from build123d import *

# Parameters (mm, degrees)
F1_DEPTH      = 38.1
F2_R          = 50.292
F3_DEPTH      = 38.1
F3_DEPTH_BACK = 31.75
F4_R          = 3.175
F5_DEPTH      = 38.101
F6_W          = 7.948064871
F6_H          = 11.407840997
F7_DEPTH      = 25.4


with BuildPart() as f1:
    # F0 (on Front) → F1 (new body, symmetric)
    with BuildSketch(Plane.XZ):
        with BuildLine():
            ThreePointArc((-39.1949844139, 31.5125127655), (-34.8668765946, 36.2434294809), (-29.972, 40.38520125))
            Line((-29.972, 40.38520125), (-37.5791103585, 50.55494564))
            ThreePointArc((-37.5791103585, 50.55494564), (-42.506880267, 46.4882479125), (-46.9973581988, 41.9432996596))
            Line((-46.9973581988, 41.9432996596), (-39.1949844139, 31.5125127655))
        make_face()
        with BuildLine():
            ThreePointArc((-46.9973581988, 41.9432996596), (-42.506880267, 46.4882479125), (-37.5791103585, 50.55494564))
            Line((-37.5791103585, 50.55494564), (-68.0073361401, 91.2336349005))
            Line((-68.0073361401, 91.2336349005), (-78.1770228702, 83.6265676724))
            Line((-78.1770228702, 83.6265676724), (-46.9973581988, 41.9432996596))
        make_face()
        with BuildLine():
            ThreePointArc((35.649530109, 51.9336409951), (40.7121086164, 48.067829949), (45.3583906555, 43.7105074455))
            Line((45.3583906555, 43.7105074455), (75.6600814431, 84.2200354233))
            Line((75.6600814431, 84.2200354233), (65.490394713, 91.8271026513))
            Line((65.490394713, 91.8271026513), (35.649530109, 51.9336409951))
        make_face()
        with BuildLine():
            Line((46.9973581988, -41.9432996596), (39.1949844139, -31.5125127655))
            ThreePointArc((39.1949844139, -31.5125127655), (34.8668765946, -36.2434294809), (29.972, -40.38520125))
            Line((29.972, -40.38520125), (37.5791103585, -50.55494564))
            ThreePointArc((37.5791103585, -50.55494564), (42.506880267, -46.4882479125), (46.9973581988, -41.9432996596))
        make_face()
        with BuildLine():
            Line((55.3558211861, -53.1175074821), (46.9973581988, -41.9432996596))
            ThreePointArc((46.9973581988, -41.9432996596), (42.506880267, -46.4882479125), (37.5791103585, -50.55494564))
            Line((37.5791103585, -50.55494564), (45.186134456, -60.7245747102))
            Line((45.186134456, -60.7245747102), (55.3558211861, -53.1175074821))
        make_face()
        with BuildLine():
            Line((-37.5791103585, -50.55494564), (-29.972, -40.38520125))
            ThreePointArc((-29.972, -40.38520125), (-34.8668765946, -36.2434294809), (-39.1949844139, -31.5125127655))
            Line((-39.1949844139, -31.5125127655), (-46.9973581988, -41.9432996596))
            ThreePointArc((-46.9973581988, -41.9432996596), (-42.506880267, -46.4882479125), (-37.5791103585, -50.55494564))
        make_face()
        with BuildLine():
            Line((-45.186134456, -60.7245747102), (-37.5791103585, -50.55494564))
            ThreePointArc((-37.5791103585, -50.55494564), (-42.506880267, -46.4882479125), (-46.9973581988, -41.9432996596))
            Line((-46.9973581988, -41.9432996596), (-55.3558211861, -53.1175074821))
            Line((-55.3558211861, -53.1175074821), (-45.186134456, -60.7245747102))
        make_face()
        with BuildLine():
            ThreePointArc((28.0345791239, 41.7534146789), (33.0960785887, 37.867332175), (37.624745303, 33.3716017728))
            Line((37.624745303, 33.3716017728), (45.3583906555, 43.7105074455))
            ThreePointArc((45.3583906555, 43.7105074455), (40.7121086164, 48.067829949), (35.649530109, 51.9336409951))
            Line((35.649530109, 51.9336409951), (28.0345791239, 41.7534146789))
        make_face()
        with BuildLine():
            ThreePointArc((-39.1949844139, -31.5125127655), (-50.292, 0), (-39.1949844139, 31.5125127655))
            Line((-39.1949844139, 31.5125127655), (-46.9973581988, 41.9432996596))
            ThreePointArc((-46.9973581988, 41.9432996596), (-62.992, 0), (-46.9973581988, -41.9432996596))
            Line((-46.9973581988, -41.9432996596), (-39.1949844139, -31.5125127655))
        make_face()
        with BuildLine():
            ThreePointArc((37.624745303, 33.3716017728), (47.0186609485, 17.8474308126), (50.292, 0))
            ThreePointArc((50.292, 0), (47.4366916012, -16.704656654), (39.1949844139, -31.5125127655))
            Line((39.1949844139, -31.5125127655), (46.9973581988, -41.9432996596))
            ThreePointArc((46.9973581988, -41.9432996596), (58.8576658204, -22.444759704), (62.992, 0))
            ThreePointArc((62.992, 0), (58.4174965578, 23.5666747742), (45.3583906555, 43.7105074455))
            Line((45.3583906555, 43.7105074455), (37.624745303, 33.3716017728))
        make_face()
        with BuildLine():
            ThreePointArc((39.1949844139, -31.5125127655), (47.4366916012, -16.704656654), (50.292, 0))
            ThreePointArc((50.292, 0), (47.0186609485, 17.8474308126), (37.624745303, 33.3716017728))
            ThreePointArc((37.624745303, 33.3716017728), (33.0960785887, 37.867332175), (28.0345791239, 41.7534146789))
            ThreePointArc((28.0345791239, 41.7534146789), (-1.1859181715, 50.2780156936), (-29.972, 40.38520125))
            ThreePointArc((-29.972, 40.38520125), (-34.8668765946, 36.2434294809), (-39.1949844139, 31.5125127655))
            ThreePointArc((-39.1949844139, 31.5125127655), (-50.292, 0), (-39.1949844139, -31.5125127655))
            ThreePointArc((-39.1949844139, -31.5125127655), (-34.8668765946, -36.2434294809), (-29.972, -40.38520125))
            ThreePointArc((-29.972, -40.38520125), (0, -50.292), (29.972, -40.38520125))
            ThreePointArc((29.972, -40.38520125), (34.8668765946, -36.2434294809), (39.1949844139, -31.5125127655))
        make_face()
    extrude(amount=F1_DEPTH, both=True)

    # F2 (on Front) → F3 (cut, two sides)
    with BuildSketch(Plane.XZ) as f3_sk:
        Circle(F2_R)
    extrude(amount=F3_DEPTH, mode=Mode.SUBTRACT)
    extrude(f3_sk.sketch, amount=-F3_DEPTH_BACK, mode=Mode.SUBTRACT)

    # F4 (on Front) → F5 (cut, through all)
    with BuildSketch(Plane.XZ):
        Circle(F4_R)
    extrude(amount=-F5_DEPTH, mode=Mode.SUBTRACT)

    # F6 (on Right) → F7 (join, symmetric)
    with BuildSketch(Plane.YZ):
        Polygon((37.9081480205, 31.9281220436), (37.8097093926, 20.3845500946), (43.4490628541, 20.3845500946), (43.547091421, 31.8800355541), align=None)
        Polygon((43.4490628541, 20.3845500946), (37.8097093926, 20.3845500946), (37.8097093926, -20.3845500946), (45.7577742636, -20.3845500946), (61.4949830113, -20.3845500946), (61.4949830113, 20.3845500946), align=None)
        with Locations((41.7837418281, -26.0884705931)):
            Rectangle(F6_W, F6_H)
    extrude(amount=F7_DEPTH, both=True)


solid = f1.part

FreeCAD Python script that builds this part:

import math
import FreeCAD as App
import Part
import Sketcher
Q = App.Units.Quantity

doc = App.newDocument("Part")
body = doc.addObject("PartDesign::Body", "Body")

sketch1 = body.newObject("Sketcher::SketchObject", "Sketch")
sketch1.AttachmentSupport = (doc.getObject("XZ_Plane"), [""])
sketch1.MapMode = "FlatFace"
sketch1.addGeometry([
    Part.LineSegment(App.Vector(-30, 40, 0), App.Vector(-38, 51, 0)),
    Part.LineSegment(App.Vector(-38, 51, 0), App.Vector(-68, 91, 0)),
    Part.LineSegment(App.Vector(-68, 91, 0), App.Vector(-78, 84, 0)),
    Part.LineSegment(App.Vector(-78, 84, 0), App.Vector(-47, 42, 0)),
    Part.ArcOfCircle(Part.Circle(App.Vector(0, 0, 0), App.Vector(0, 0, 1), 63), math.radians(138), math.radians(222)),
    Part.LineSegment(App.Vector(-47, -42, 0), App.Vector(-55, -53, 0)),
    Part.LineSegment(App.Vector(-55, -53, 0), App.Vector(-45, -61, 0)),
    Part.LineSegment(App.Vector(-45, -61, 0), App.Vector(-38, -51, 0)),
    Part.LineSegment(App.Vector(-38, -51, 0), App.Vector(-30, -40, 0)),
    Part.ArcOfCircle(Part.Circle(App.Vector(0, 0, 0), App.Vector(0, 0, 1), 50), math.radians(-127), math.radians(-53)),
    Part.LineSegment(App.Vector(30, -40, 0), App.Vector(38, -51, 0)),
    Part.LineSegment(App.Vector(38, -51, 0), App.Vector(45, -61, 0)),
    Part.LineSegment(App.Vector(45, -61, 0), App.Vector(55, -53, 0)),
    Part.LineSegment(App.Vector(55, -53, 0), App.Vector(47, -42, 0)),
    Part.ArcOfCircle(Part.Circle(App.Vector(0, 0, 0), App.Vector(0, 0, 1), 63), math.radians(-42), math.radians(0)),
    Part.ArcOfCircle(Part.Circle(App.Vector(0, 0, 0), App.Vector(0, 0, 1), 63), math.radians(0), math.radians(44)),
    Part.LineSegment(App.Vector(45, 44, 0), App.Vector(76, 84, 0)),
    Part.LineSegment(App.Vector(76, 84, 0), App.Vector(65, 92, 0)),
    Part.LineSegment(App.Vector(65, 92, 0), App.Vector(36, 52, 0)),
    Part.LineSegment(App.Vector(36, 52, 0), App.Vector(28, 42, 0)),
    Part.ArcOfCircle(Part.Circle(App.Vector(0, 0, 0), App.Vector(0, 0, 1), 50), math.radians(56), math.radians(127)),
], False)
sketch1.addConstraint([
    Sketcher.Constraint("Coincident", 0, 2, 1, 1),
    Sketcher.Constraint("Coincident", 1, 2, 2, 1),
    Sketcher.Constraint("Coincident", 2, 2, 3, 1),
    Sketcher.Constraint("Coincident", 3, 2, 4, 1),
    Sketcher.Constraint("Coincident", 4, 2, 5, 1),
    Sketcher.Constraint("Coincident", 5, 2, 6, 1),
    Sketcher.Constraint("Coincident", 6, 2, 7, 1),
    Sketcher.Constraint("Coincident", 7, 2, 8, 1),
    Sketcher.Constraint("Coincident", 8, 2, 9, 1),
    Sketcher.Constraint("Coincident", 9, 2, 10, 1),
    Sketcher.Constraint("Coincident", 10, 2, 11, 1),
    Sketcher.Constraint("Coincident", 11, 2, 12, 1),
    Sketcher.Constraint("Coincident", 12, 2, 13, 1),
    Sketcher.Constraint("Coincident", 13, 2, 14, 1),
    Sketcher.Constraint("Tangent", 14, 2, 15, 1),
    Sketcher.Constraint("Coincident", 15, 2, 16, 1),
    Sketcher.Constraint("Coincident", 16, 2, 17, 1),
    Sketcher.Constraint("Coincident", 17, 2, 18, 1),
    Sketcher.Constraint("Coincident", 18, 2, 19, 1),
    Sketcher.Constraint("Coincident", 19, 2, 20, 1),
    Sketcher.Constraint("Coincident", 20, 2, 0, 1),
    Sketcher.Constraint("Coincident", 4, 3, -1, 1),
    Sketcher.Constraint("Coincident", 9, 3, -1, 1),
    Sketcher.Constraint("Coincident", 14, 3, -1, 1),
    Sketcher.Constraint("Coincident", 20, 3, -1, 1),
    Sketcher.Constraint("Equal", 4, 14),
    Sketcher.Constraint("Equal", 14, 15),
    Sketcher.Constraint("Equal", 9, 20),
    Sketcher.Constraint("Symmetric", 0, 2, 10, 2, -1, 1),
    Sketcher.Constraint("Symmetric", 7, 2, 10, 2, -2),
    Sketcher.Constraint("Symmetric", 6, 2, 11, 2, -2),
    Sketcher.Constraint("Symmetric", 5, 2, 12, 2, -2),
    Sketcher.Constraint("PointOnObject", 14, 2, -1),
    Sketcher.Constraint("Parallel", 0, 1),
    Sketcher.Constraint("Perpendicular", 1, 2),
    Sketcher.Constraint("Perpendicular", 2, 3),
    Sketcher.Constraint("Perpendicular", 5, 6),
    Sketcher.Constraint("Perpendicular", 6, 7),
    Sketcher.Constraint("Parallel", 7, 8),
    Sketcher.Constraint("Parallel", 3, 10),
    Sketcher.Constraint("Parallel", 10, 11),
    Sketcher.Constraint("Perpendicular", 12, 13),
    Sketcher.Constraint("Parallel", 8, 16),
    Sketcher.Constraint("Perpendicular", 16, 17),
    Sketcher.Constraint("Perpendicular", 17, 18),
    Sketcher.Constraint("Parallel", 18, 19),
    Sketcher.Constraint("Vertical", 3, 2, 4, 2),
    Sketcher.Constraint("Equal", 12, 17),
    Sketcher.Constraint("Radius", 4, Q("2.48 in")),
    Sketcher.Constraint("Radius", 9, Q("1.98 in")),
    Sketcher.Constraint("Distance", 2, Q("0.5 in")),
    Sketcher.Constraint("DistanceX", 9, 2, 14, 2, Q("1.3 in")),
    Sketcher.Constraint("DistanceY", -1, 1, 3, 2, 41.9433),
    Sketcher.Constraint("Distance", 18, 49.819328),
    Sketcher.Constraint("Distance", 19, 12.713162),
    Sketcher.Constraint("DistanceX", 0, 2, -1, 1, 37.57911),
    Sketcher.Constraint("DistanceX", 5, 2, -1, 1, 55.355821),
    Sketcher.Constraint("DistanceX", -1, 1, 15, 2, 45.358391),
    Sketcher.Constraint("DistanceY", 0, 2, 1, 2, 40.678689),
])
pad1 = body.newObject("PartDesign::Pad", "Pad")
pad1.Profile = sketch1
pad1.Length = Q("3 in")
pad1.Midplane = True

sketch2 = body.newObject("Sketcher::SketchObject", "Sketch001")
sketch2.AttachmentSupport = (doc.getObject("XZ_Plane"), [""])
sketch2.MapMode = "FlatFace"
sketch2.addGeometry(Part.Circle(App.Vector(0, 0, 0), App.Vector(0, 0, 1), 50), False)
sketch2.addConstraint([
    Sketcher.Constraint("Coincident", 0, 3, -1, 1),
    Sketcher.Constraint("Diameter", 0, Q("3.96 in")),
])
pocket1 = body.newObject("PartDesign::Pocket", "Pocket")
pocket1.Profile = sketch2
pocket1.Type = "TwoLengths"
pocket1.Length = Q("1.5 in")
pocket1.Length2 = Q("1.25 in")
pocket1.Reversed = True

sketch3 = body.newObject("Sketcher::SketchObject", "Sketch002")
sketch3.AttachmentSupport = (doc.getObject("XZ_Plane"), [""])
sketch3.MapMode = "FlatFace"
sketch3.addGeometry(Part.Circle(App.Vector(0, 0, 0), App.Vector(0, 0, 1), 3.2), False)
sketch3.addConstraint([
    Sketcher.Constraint("Coincident", 0, 3, -1, 1),
    Sketcher.Constraint("Diameter", 0, Q("0.25 in")),
])
pocket2 = body.newObject("PartDesign::Pocket", "Pocket001")
pocket2.Profile = sketch3
pocket2.Type = "ThroughAll"

sketch4 = body.newObject("Sketcher::SketchObject", "Sketch003")
sketch4.AttachmentSupport = (doc.getObject("YZ_Plane"), [""])
sketch4.MapMode = "FlatFace"
sketch4.addGeometry([
    Part.LineSegment(App.Vector(38, 32, 0), App.Vector(38, 20, 0)),
    Part.LineSegment(App.Vector(38, 20, 0), App.Vector(38, -32, 0)),
    Part.LineSegment(App.Vector(38, -32, 0), App.Vector(46, -32, 0)),
    Part.LineSegment(App.Vector(46, -32, 0), App.Vector(46, -20, 0)),
    Part.LineSegment(App.Vector(46, -20, 0), App.Vector(61, -20, 0)),
    Part.LineSegment(App.Vector(61, -20, 0), App.Vector(61, 20, 0)),
    Part.LineSegment(App.Vector(61, 20, 0), App.Vector(43, 20, 0)),
    Part.LineSegment(App.Vector(43, 20, 0), App.Vector(44, 32, 0)),
    Part.LineSegment(App.Vector(44, 32, 0), App.Vector(38, 32, 0)),
], False)
sketch4.addConstraint([
    Sketcher.Constraint("Coincident", 0, 2, 1, 1),
    Sketcher.Constraint("Coincident", 1, 2, 2, 1),
    Sketcher.Constraint("Coincident", 2, 2, 3, 1),
    Sketcher.Constraint("Coincident", 3, 2, 4, 1),
    Sketcher.Constraint("Coincident", 4, 2, 5, 1),
    Sketcher.Constraint("Coincident", 5, 2, 6, 1),
    Sketcher.Constraint("Coincident", 6, 2, 7, 1),
    Sketcher.Constraint("Coincident", 7, 2, 8, 1),
    Sketcher.Constraint("Coincident", 8, 2, 0, 1),
    Sketcher.Constraint("Vertical", 1),
    Sketcher.Constraint("Horizontal", 2),
    Sketcher.Constraint("Vertical", 3),
    Sketcher.Constraint("Horizontal", 4),
    Sketcher.Constraint("Vertical", 5),
    Sketcher.Constraint("Horizontal", 6),
    Sketcher.Constraint("Parallel", 0, 7),
    Sketcher.Constraint("Perpendicular", 7, 8),
    Sketcher.Constraint("Horizontal", 0, 2, 5, 2),
    Sketcher.Constraint("DistanceY", 5, 1, 5, 2, 40.7691),
    Sketcher.Constraint("DistanceX", 4, 1, 4, 2, 15.737209),
    Sketcher.Constraint("DistanceX", 6, 2, 6, 1, 18.04592),
    Sketcher.Constraint("DistanceY", 1, 2, 1, 1, 52.176941),
    Sketcher.Constraint("Distance", 0, 11.543992),
    Sketcher.Constraint("Distance", 8, 5.639148),
    Sketcher.Constraint("DistanceX", -1, 1, 0, 2, 37.809709),
    Sketcher.Constraint("DistanceY", -1, 1, 0, 2, 20.38455),
    Sketcher.Constraint("DistanceX", -1, 1, 7, 2, 43.547091),
])
pad2 = body.newObject("PartDesign::Pad", "Pad001")
pad2.Profile = sketch4
pad2.Length = Q("2 in")
pad2.Midplane = True

doc.recompute()
